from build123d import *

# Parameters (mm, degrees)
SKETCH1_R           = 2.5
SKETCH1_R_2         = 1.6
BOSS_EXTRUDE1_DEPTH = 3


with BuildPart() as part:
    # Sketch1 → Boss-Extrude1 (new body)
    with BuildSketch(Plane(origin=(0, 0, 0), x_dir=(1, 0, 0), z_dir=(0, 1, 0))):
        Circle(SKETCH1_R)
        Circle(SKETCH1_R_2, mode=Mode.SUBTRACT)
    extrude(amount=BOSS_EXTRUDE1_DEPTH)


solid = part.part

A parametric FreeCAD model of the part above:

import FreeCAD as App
import Part
import Sketcher
from FreeCAD import Vector

doc = App.newDocument("Part")
params = doc.addObject("Spreadsheet::Sheet", "Params")
for row, (alias, value) in enumerate([
    ("sketch1_diameter", "5 mm"),
    ("sketch1_diameter2", "3.2 mm"),
    ("pad1_length", "3 mm"),
], start=1):
    params.set(f"A{row}", alias)
    params.set(f"B{row}", "=" + value)
    params.setAlias(f"B{row}", alias)

body = doc.addObject("PartDesign::Body", "Body")

# Sketch on XZ plane
sketch1 = body.newObject("Sketcher::SketchObject", "Sketch")
sketch1.AttachmentSupport = (doc.getObject("XZ_Plane"), [""])
sketch1.MapMode = "FlatFace"
sketch1.addGeometry(Part.Circle(Vector(0, 0, 0), Vector(0, 0, 1), 2.5), False)
sketch1.addGeometry(Part.Circle(Vector(0, 0, 0), Vector(0, 0, 1), 1.6), False)
sketch1.addConstraint(Sketcher.Constraint("Coincident", 0, 3, -1, 1))
sketch1.addConstraint(Sketcher.Constraint("Coincident", 1, 3, -1, 1))
sketch1.addConstraint(Sketcher.Constraint("Diameter", 0, 5.0))
sketch1.addConstraint(Sketcher.Constraint("Diameter", 1, 3.2))
sketch1.setExpression("Constraints[2]", "Params.sketch1_diameter")
sketch1.setExpression("Constraints[3]", "Params.sketch1_diameter2")
pad1 = body.newObject("PartDesign::Pad", "Pad")
pad1.Profile = sketch1
pad1.setExpression("Length", "Params.pad1_length")
pad1.Reversed = True

doc.recompute()
